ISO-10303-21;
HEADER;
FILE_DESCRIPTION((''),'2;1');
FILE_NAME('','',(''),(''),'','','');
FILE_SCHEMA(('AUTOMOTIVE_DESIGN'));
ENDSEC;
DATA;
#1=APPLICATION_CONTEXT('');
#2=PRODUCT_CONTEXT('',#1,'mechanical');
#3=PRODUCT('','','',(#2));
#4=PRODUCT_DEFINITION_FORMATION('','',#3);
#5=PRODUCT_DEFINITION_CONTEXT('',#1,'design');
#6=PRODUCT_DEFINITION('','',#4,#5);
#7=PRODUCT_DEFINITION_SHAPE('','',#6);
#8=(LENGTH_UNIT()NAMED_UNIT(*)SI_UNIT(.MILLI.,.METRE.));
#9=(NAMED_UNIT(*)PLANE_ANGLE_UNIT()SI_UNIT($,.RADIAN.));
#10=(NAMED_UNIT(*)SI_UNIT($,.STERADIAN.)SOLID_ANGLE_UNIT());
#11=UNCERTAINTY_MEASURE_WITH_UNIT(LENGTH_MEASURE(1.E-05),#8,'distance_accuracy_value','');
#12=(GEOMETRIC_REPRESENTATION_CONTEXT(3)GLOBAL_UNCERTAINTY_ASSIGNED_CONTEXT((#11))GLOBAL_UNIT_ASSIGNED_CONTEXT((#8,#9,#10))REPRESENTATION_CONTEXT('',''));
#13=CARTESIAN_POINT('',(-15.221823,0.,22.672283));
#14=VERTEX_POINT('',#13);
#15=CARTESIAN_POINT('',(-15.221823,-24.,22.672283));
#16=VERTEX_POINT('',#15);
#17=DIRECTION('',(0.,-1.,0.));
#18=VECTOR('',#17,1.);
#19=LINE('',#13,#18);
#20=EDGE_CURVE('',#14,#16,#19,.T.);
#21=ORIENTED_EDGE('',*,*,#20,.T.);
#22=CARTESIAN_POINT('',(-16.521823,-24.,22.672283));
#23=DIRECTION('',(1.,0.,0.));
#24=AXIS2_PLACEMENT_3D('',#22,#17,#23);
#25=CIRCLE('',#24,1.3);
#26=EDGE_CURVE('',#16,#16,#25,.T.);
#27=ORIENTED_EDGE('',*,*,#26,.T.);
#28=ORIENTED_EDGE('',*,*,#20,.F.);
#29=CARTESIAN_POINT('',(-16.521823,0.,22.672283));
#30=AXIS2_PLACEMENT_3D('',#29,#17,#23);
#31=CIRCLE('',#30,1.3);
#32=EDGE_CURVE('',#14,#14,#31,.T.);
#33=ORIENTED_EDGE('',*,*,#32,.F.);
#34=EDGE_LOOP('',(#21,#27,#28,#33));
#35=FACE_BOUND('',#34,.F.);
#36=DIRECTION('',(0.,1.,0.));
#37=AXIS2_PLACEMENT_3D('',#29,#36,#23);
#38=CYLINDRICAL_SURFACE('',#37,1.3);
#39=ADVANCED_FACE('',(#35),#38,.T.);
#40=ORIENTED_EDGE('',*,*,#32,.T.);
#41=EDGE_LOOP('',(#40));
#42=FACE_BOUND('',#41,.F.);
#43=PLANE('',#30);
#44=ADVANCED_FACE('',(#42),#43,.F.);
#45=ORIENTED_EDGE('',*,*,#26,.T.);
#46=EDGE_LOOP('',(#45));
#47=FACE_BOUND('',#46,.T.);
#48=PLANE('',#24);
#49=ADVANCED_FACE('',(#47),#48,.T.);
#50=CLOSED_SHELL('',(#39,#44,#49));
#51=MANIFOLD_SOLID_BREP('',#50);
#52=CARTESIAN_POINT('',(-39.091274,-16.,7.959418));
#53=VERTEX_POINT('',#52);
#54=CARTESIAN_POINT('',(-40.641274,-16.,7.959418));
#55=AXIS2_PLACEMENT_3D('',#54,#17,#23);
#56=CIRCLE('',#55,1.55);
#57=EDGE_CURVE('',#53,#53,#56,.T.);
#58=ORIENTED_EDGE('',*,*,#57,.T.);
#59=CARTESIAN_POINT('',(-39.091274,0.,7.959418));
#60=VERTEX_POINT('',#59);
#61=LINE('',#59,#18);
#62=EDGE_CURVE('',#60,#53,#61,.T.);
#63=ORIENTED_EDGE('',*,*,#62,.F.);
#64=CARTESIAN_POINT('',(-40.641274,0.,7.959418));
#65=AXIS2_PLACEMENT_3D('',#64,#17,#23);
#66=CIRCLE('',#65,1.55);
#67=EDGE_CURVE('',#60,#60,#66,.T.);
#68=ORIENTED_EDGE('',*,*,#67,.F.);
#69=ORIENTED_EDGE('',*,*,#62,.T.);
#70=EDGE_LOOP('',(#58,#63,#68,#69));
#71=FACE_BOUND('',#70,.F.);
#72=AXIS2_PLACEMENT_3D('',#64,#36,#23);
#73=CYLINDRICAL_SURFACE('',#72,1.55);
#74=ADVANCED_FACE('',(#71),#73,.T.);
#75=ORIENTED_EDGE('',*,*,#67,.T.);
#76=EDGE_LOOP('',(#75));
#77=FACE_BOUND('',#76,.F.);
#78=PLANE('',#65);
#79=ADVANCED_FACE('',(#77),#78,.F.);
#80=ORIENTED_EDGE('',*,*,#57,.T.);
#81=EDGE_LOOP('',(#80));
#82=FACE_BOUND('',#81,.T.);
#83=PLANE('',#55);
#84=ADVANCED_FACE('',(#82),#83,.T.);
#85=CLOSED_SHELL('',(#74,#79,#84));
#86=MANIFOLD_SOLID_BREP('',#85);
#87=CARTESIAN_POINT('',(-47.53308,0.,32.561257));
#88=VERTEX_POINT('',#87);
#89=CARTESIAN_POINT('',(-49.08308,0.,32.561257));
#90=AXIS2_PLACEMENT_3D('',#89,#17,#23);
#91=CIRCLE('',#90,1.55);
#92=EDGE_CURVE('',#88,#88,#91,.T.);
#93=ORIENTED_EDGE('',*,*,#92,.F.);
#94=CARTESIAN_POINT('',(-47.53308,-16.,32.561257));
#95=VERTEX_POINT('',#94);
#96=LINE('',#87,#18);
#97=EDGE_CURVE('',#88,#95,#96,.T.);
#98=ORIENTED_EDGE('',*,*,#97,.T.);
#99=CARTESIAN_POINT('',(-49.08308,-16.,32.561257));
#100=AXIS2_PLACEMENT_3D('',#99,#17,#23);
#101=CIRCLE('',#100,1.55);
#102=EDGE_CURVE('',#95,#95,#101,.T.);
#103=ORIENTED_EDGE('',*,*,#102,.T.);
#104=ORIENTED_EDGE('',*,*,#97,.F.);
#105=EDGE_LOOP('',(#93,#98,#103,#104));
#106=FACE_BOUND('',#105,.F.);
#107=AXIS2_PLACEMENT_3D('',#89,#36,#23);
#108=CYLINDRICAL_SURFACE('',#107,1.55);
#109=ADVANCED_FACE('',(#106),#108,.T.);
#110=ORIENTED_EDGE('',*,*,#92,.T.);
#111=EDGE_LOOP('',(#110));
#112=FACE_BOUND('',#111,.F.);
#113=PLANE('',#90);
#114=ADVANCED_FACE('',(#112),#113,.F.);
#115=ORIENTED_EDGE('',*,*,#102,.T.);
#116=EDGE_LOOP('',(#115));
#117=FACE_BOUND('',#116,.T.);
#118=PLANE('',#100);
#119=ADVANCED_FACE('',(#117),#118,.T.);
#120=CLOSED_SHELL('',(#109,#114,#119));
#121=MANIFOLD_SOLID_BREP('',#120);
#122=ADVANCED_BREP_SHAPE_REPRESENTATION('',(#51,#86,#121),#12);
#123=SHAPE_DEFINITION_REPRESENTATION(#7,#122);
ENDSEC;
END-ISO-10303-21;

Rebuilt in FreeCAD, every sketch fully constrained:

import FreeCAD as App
import Part
import Sketcher

V = App.Vector

doc = App.newDocument("Part")
body = doc.addObject("PartDesign::Body", "Body")

# Sketch on XZ plane
sketch1 = doc.addObject("Sketcher::SketchObject", "Sketch")
body.addObject(sketch1)
sketch1.AttachmentSupport = (doc.XZ_Plane, [""])
sketch1.MapMode = "FlatFace"
sketch1.addGeometry(Part.Circle(V(-49.1, 32.6, 0), V(0, 0, 1), 1.6), False)
sketch1.addConstraint(Sketcher.Constraint("Diameter", 0, 3.1))
sketch1.addConstraint(Sketcher.Constraint("DistanceX", 0, 3, -1, 1, 49.08308))
sketch1.addConstraint(Sketcher.Constraint("DistanceY", -1, 1, 0, 3, 32.561257))
pad1 = doc.addObject("PartDesign::Pad", "Pad")
body.addObject(pad1)
pad1.Profile = sketch1
pad1.Length = 16
body2 = doc.addObject("PartDesign::Body", "Body001")

# Sketch on XZ plane
sketch2 = doc.addObject("Sketcher::SketchObject", "Sketch001")
body2.addObject(sketch2)
sketch2.AttachmentSupport = (doc.getObject("XZ_Plane001"), [""])
sketch2.MapMode = "FlatFace"
sketch2.addGeometry(Part.Circle(V(-40.6, 8, 0), V(0, 0, 1), 1.6), False)
sketch2.addConstraint(Sketcher.Constraint("Diameter", 0, 3.1))
sketch2.addConstraint(Sketcher.Constraint("DistanceY", -1, 1, 0, 3, 7.959418))
sketch2.addConstraint(Sketcher.Constraint("DistanceX", 0, 3, -1, 1, 40.641274))
pad2 = doc.addObject("PartDesign::Pad", "Pad001")
body2.addObject(pad2)
pad2.Profile = sketch2
pad2.Length = 16
body3 = doc.addObject("PartDesign::Body", "Body002")

# Sketch on XZ plane
sketch3 = doc.addObject("Sketcher::SketchObject", "Sketch002")
body3.addObject(sketch3)
sketch3.AttachmentSupport = (doc.getObject("XZ_Plane002"), [""])
sketch3.MapMode = "FlatFace"
sketch3.addGeometry(Part.Circle(V(-16.5, 22.7, 0), V(0, 0, 1), 1.3), False)
sketch3.addConstraint(Sketcher.Constraint("Diameter", 0, 2.6))
sketch3.addConstraint(Sketcher.Constraint("DistanceX", 0, 3, -1, 1, 16.521823))
sketch3.addConstraint(Sketcher.Constraint("DistanceY", -1, 1, 0, 3, 22.672283))
pad3 = doc.addObject("PartDesign::Pad", "Pad002")
body3.addObject(pad3)
pad3.Profile = sketch3
pad3.Length = 24

doc.recompute()
